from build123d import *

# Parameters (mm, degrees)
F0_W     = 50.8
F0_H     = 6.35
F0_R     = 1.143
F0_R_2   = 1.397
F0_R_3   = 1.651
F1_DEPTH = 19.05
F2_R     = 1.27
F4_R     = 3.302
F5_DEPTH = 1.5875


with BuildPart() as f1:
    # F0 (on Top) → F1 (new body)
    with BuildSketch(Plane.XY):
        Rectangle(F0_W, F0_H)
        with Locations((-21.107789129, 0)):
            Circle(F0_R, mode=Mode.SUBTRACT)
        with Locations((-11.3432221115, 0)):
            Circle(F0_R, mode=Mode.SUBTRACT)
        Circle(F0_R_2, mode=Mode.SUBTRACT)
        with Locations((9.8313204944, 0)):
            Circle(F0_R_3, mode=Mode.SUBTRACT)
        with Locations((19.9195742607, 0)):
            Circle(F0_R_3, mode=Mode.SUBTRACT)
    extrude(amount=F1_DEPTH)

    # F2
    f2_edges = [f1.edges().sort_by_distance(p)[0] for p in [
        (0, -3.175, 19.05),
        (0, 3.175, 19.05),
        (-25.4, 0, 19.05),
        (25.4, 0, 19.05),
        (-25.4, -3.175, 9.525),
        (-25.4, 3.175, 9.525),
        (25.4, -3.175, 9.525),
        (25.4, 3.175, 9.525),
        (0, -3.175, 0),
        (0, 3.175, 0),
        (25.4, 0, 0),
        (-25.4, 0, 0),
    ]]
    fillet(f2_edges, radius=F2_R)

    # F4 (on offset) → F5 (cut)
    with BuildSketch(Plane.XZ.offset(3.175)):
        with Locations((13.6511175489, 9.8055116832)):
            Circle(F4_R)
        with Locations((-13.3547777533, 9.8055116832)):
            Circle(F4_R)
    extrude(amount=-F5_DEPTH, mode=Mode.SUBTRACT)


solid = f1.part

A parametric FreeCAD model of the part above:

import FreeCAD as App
import Part
import Sketcher
from FreeCAD import Vector
Q = App.Units.Quantity


def edges_at(feature, points):
    """Names of the edges that pass closest to the given points."""
    edges = feature.Shape.Edges
    near = lambda p: min(range(len(edges)), key=lambda i: edges[i].distToShape(Part.Vertex(*p))[0])
    return sorted({f"Edge{near(p) + 1}" for p in points})


def add_polygon(sketch, points):
    """Adds a closed chain of lines whose ends are joined by coincident constraints."""
    first, n = sketch.GeometryCount, len(points)
    for a, b in zip(points, points[1:] + points[:1]):
        sketch.addGeometry(Part.LineSegment(App.Vector(*a, 0), App.Vector(*b, 0)), False)
    for i in range(n):
        sketch.addConstraint(Sketcher.Constraint("Coincident", first + i, 2, first + (i + 1) % n, 1))

doc = App.newDocument("Part")
body = doc.addObject("PartDesign::Body", "Body")

# Sketch on XY plane
sketch1 = body.newObject("Sketcher::SketchObject", "Sketch")
sketch1.AttachmentSupport = (doc.getObject("XY_Plane"), [""])
sketch1.MapMode = "FlatFace"
add_polygon(sketch1, [(-25.4, 3.2), (-25.4, -3.2), (25.4, -3.2), (25.4, 3.2)])  # lines 0-3
sketch1.addGeometry(Part.Circle(Vector(-21.1, 0, 0), Vector(0, 0, 1), 1.1), False)  # 4
sketch1.addGeometry(Part.Circle(Vector(-11.3, 0, 0), Vector(0, 0, 1), 1.1), False)  # 5
sketch1.addGeometry(Part.Circle(Vector(0, 0, 0), Vector(0, 0, 1), 1.4), False)  # 6
sketch1.addGeometry(Part.Circle(Vector(9.8, 0, 0), Vector(0, 0, 1), 1.7), False)  # 7
sketch1.addGeometry(Part.Circle(Vector(19.9, 0, 0), Vector(0, 0, 1), 1.7), False)  # 8
sketch1.addConstraint(Sketcher.Constraint("Vertical", 0))
sketch1.addConstraint(Sketcher.Constraint("Horizontal", 1))
sketch1.addConstraint(Sketcher.Constraint("Vertical", 2))
sketch1.addConstraint(Sketcher.Constraint("Horizontal", 3))
sketch1.addConstraint(Sketcher.Constraint("Coincident", 6, 3, -1, 1))
sketch1.addConstraint(Sketcher.Constraint("Equal", 4, 5))
sketch1.addConstraint(Sketcher.Constraint("Equal", 7, 8))
sketch1.addConstraint(Sketcher.Constraint("Symmetric", 0, 2, 2, 2, -1, 1))
sketch1.addConstraint(Sketcher.Constraint("PointOnObject", 4, 3, -1))
sketch1.addConstraint(Sketcher.Constraint("PointOnObject", 5, 3, -1))
sketch1.addConstraint(Sketcher.Constraint("PointOnObject", 7, 3, -1))
sketch1.addConstraint(Sketcher.Constraint("PointOnObject", 8, 3, -1))
sketch1.addConstraint(Sketcher.Constraint("Diameter", 4, Q("0.09 in")))
sketch1.addConstraint(Sketcher.Constraint("Diameter", 6, Q("0.11 in")))
sketch1.addConstraint(Sketcher.Constraint("Diameter", 7, Q("0.13 in")))
sketch1.addConstraint(Sketcher.Constraint("DistanceX", 1, 1, 1, 2, Q("2 in")))
sketch1.addConstraint(Sketcher.Constraint("DistanceY", 0, 2, 0, 1, Q("0.25 in")))
sketch1.addConstraint(Sketcher.Constraint("DistanceX", 4, 3, -1, 1, Q("21.107789 mm")))
sketch1.addConstraint(Sketcher.Constraint("DistanceX", -1, 1, 7, 3, Q("9.83132 mm")))
sketch1.addConstraint(Sketcher.Constraint("DistanceX", 5, 3, -1, 1, Q("11.343222 mm")))
sketch1.addConstraint(Sketcher.Constraint("DistanceX", -1, 1, 8, 3, Q("19.919574 mm")))
pad1 = body.newObject("PartDesign::Pad", "Pad")
pad1.Profile = sketch1
pad1.Length = Q("0.75 in")
doc.recompute()

fillet = body.newObject("PartDesign::Fillet", "Fillet")
fillet.Base = (pad1, edges_at(pad1, [
    (0, -3.175, 19.05),
    (0, 3.175, 19.05),
    (-25.4, 0, 19.05),
    (25.4, 0, 19.05),
    (-25.4, -3.175, 9.525),
    (-25.4, 3.175, 9.525),
    (25.4, -3.175, 9.525),
    (25.4, 3.175, 9.525),
    (0, -3.175, 0),
    (0, 3.175, 0),
    (25.4, 0, 0),
    (-25.4, 0, 0),
]))
fillet.Radius = Q("0.05 in")

# Sketch on XZ plane
sketch2 = body.newObject("Sketcher::SketchObject", "Sketch001")
sketch2.AttachmentSupport = (doc.getObject("XZ_Plane"), [""])
sketch2.MapMode = "FlatFace"
sketch2.AttachmentOffset = App.Placement(Vector(0, 0, 0.125 * 25.4), App.Rotation())
sketch2.addGeometry(Part.Circle(Vector(13.7, 9.8, 0), Vector(0, 0, 1), 3.3), False)
sketch2.addGeometry(Part.Circle(Vector(-13.4, 9.8, 0), Vector(0, 0, 1), 3.3), False)
sketch2.addConstraint(Sketcher.Constraint("Equal", 0, 1))
sketch2.addConstraint(Sketcher.Constraint("Horizontal", 0, 3, 1, 3))
sketch2.addConstraint(Sketcher.Constraint("Diameter", 0, Q("0.26 in")))
sketch2.addConstraint(Sketcher.Constraint("DistanceY", -1, 1, 0, 3, Q("9.805512 mm")))
sketch2.addConstraint(Sketcher.Constraint("DistanceX", -1, 1, 0, 3, Q("13.651118 mm")))
sketch2.addConstraint(Sketcher.Constraint("DistanceX", 1, 3, -1, 1, Q("13.354778 mm")))
pocket1 = body.newObject("PartDesign::Pocket", "Pocket")
pocket1.Profile = sketch2
pocket1.Length = Q("0.0625 in")

doc.recompute()
